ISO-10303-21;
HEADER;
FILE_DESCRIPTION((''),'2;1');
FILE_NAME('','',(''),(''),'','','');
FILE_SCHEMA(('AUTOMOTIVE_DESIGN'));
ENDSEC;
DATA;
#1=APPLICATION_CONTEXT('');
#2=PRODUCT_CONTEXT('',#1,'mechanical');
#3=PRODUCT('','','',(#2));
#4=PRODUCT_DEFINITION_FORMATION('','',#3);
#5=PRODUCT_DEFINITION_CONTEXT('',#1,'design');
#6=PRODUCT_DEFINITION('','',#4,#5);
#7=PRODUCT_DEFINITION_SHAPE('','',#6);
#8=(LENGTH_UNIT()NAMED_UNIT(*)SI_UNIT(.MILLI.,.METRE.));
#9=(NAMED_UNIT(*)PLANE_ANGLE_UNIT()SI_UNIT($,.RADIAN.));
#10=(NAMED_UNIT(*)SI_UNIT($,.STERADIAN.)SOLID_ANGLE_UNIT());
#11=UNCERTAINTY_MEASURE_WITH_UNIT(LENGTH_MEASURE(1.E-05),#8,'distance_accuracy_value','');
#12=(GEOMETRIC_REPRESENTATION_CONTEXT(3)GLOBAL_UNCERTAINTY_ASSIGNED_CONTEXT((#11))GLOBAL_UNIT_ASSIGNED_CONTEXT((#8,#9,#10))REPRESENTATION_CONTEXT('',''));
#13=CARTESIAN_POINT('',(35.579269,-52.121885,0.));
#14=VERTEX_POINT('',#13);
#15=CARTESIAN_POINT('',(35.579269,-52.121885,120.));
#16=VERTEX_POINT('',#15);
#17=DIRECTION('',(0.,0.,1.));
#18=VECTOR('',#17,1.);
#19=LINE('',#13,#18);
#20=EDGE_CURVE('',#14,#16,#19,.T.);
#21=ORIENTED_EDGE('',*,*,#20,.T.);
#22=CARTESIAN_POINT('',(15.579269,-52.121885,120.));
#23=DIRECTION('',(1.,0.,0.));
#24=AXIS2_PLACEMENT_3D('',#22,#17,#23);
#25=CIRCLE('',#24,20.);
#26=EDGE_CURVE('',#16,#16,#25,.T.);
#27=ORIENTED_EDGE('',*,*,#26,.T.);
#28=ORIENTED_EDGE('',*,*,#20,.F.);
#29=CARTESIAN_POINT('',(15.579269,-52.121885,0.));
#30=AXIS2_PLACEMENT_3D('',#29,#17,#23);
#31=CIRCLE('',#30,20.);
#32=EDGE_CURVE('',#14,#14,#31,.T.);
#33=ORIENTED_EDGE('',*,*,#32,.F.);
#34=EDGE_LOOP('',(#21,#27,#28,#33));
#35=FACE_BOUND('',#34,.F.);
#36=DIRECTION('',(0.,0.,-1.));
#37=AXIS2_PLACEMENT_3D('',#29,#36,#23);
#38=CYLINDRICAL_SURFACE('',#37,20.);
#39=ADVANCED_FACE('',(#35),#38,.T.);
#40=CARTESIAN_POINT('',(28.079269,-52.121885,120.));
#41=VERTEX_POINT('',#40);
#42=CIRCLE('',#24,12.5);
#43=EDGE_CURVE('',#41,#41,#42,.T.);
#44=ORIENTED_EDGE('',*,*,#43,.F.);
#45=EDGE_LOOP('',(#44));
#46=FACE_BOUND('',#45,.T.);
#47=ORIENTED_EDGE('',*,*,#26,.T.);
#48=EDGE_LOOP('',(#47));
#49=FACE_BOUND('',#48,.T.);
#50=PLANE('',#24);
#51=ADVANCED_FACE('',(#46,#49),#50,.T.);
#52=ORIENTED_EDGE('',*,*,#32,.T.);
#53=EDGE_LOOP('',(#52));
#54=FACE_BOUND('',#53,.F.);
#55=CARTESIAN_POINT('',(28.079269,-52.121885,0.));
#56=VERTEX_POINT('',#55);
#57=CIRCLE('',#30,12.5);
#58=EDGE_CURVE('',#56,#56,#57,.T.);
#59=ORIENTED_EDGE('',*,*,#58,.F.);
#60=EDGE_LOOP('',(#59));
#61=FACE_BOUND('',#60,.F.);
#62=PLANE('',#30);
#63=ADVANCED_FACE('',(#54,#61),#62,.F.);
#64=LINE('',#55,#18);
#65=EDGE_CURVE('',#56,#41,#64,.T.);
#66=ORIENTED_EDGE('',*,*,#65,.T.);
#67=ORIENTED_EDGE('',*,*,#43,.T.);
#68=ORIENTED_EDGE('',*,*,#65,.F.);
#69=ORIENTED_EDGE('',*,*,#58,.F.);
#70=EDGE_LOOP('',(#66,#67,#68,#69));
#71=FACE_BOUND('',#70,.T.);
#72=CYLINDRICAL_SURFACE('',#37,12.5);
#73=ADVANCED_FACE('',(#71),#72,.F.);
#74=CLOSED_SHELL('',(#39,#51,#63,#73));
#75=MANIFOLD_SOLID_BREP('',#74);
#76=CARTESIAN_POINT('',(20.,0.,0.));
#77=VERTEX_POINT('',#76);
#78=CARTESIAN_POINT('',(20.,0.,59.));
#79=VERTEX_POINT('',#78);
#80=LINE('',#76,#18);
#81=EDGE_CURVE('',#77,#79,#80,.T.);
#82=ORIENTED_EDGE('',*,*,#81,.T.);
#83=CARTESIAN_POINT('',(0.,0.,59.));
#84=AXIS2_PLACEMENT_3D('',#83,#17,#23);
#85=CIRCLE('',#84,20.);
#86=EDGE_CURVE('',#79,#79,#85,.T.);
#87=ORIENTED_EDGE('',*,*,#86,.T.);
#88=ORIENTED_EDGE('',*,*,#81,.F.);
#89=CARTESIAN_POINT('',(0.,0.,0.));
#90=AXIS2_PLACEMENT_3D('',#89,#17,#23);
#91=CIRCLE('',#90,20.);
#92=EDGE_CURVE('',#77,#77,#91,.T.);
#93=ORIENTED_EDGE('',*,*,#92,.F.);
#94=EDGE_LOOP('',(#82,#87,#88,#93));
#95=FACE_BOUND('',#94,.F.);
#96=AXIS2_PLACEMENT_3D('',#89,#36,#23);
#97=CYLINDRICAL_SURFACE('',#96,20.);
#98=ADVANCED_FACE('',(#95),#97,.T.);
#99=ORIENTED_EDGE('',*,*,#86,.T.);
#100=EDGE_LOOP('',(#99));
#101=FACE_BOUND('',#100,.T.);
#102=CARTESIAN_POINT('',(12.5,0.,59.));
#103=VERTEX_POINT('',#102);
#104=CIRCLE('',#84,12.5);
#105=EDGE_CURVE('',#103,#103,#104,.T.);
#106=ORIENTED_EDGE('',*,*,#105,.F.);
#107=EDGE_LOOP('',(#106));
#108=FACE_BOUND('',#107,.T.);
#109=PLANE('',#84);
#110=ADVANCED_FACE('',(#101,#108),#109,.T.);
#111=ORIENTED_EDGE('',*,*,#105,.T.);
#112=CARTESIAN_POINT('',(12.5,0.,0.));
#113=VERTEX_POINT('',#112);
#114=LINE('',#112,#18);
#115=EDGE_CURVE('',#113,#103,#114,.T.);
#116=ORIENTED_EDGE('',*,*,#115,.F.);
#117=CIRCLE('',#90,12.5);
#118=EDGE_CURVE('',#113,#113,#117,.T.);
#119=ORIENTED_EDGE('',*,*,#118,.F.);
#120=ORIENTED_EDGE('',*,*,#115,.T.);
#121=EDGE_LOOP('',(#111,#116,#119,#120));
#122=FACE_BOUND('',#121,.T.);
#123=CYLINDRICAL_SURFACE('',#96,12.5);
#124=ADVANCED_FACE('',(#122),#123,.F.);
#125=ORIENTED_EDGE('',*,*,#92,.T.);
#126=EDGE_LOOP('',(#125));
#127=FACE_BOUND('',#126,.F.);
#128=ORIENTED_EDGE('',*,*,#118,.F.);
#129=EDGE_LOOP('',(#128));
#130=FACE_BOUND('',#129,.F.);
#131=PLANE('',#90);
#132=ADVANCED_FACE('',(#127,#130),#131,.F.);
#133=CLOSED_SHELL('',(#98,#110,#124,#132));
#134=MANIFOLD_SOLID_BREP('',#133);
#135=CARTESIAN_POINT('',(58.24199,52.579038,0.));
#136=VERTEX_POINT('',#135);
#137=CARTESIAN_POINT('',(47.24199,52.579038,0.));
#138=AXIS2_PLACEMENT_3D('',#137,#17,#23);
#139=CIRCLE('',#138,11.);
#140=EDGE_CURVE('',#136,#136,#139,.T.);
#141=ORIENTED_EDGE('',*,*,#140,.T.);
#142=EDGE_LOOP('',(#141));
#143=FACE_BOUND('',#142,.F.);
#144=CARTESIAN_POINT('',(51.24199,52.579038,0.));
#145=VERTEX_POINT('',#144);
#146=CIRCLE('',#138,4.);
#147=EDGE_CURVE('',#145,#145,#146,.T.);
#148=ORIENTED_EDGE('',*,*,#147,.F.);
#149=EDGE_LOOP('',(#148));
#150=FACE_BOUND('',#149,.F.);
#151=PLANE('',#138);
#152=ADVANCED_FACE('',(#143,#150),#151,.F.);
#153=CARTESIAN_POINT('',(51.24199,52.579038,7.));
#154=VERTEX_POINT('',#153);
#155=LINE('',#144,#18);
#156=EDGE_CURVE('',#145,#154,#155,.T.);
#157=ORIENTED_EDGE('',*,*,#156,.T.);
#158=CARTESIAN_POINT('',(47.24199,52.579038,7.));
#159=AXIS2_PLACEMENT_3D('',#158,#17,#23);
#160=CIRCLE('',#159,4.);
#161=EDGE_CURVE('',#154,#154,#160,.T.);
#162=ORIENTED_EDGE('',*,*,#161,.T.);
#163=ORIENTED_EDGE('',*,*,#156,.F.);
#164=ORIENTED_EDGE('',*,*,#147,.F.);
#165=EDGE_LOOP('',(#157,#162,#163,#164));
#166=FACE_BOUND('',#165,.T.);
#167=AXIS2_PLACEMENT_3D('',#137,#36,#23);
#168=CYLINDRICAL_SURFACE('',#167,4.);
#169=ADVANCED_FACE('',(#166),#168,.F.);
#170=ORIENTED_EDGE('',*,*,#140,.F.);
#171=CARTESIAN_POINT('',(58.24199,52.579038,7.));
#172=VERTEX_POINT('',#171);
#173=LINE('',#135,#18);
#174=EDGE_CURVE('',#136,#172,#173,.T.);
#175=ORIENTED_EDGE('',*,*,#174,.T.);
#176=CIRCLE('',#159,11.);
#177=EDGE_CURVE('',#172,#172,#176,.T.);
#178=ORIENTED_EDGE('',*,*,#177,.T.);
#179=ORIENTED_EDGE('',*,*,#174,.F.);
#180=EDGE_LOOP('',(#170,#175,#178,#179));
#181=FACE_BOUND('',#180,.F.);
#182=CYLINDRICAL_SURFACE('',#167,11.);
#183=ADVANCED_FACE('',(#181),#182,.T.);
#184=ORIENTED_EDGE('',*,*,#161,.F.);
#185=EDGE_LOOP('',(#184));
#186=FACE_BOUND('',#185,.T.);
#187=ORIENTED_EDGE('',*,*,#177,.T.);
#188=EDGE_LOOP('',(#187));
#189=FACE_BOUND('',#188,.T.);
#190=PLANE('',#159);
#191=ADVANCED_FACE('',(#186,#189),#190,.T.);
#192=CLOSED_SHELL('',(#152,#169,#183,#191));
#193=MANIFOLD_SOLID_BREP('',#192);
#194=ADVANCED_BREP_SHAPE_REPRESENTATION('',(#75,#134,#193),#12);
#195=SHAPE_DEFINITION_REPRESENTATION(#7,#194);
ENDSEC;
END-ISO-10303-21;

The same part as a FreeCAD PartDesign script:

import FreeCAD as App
import Part
import Sketcher
Q = App.Units.Quantity

doc = App.newDocument("Part")
body = doc.addObject("PartDesign::Body", "Body")

# Sketch on XY plane
sketch1 = body.newObject("Sketcher::SketchObject", "Sketch")
sketch1.AttachmentSupport = (doc.getObject("XY_Plane"), [""])
sketch1.MapMode = "FlatFace"
sketch1.addGeometry(Part.Circle(App.Vector(0, 0, 0), App.Vector(0, 0, 1), 20), False)
sketch1.addGeometry(Part.Circle(App.Vector(0, 0, 0), App.Vector(0, 0, 1), 12.5), False)
sketch1.addConstraint(Sketcher.Constraint("Coincident", 0, 3, -1, 1))
sketch1.addConstraint(Sketcher.Constraint("Coincident", 1, 3, -1, 1))
sketch1.addConstraint(Sketcher.Constraint("Diameter", 0, Q("40 mm")))
sketch1.addConstraint(Sketcher.Constraint("Diameter", 1, Q("25 mm")))
pad1 = body.newObject("PartDesign::Pad", "Pad")
pad1.Profile = sketch1
pad1.Length = 59
body2 = doc.addObject("PartDesign::Body", "Body001")

# Sketch on XY plane
sketch2 = body2.newObject("Sketcher::SketchObject", "Sketch001")
sketch2.AttachmentSupport = (doc.getObject("XY_Plane001"), [""])
sketch2.MapMode = "FlatFace"
sketch2.addGeometry(Part.Circle(App.Vector(47.24199, 52.579038, 0), App.Vector(0, 0, 1), 11), False)
sketch2.addGeometry(Part.Circle(App.Vector(47.24199, 52.579038, 0), App.Vector(0, 0, 1), 4), False)
sketch2.addConstraint(Sketcher.Constraint("Coincident", 1, 3, 0, 3))
sketch2.addConstraint(Sketcher.Constraint("Diameter", 0, Q("22 mm")))
sketch2.addConstraint(Sketcher.Constraint("Diameter", 1, Q("8 mm")))
sketch2.addConstraint(Sketcher.Constraint("DistanceX", -1, 1, 0, 3, Q("47.24199 mm")))
sketch2.addConstraint(Sketcher.Constraint("DistanceY", -1, 1, 0, 3, Q("52.579038 mm")))
pad2 = body2.newObject("PartDesign::Pad", "Pad001")
pad2.Profile = sketch2
pad2.Length = 7
body3 = doc.addObject("PartDesign::Body", "Body002")

# Sketch on XY plane
sketch3 = body3.newObject("Sketcher::SketchObject", "Sketch002")
sketch3.AttachmentSupport = (doc.getObject("XY_Plane002"), [""])
sketch3.MapMode = "FlatFace"
sketch3.addGeometry(Part.Circle(App.Vector(15.579269, -52.121885, 0), App.Vector(0, 0, 1), 20), False)
sketch3.addGeometry(Part.Circle(App.Vector(15.579269, -52.121885, 0), App.Vector(0, 0, 1), 12.5), False)
sketch3.addConstraint(Sketcher.Constraint("Coincident", 1, 3, 0, 3))
sketch3.addConstraint(Sketcher.Constraint("Diameter", 0, Q("40 mm")))
sketch3.addConstraint(Sketcher.Constraint("Diameter", 1, Q("25 mm")))
sketch3.addConstraint(Sketcher.Constraint("DistanceX", -1, 1, 0, 3, Q("15.579269 mm")))
sketch3.addConstraint(Sketcher.Constraint("DistanceY", 0, 3, -1, 1, Q("52.121885 mm")))
pad3 = body3.newObject("PartDesign::Pad", "Pad002")
pad3.Profile = sketch3
pad3.Length = 120

doc.recompute()
